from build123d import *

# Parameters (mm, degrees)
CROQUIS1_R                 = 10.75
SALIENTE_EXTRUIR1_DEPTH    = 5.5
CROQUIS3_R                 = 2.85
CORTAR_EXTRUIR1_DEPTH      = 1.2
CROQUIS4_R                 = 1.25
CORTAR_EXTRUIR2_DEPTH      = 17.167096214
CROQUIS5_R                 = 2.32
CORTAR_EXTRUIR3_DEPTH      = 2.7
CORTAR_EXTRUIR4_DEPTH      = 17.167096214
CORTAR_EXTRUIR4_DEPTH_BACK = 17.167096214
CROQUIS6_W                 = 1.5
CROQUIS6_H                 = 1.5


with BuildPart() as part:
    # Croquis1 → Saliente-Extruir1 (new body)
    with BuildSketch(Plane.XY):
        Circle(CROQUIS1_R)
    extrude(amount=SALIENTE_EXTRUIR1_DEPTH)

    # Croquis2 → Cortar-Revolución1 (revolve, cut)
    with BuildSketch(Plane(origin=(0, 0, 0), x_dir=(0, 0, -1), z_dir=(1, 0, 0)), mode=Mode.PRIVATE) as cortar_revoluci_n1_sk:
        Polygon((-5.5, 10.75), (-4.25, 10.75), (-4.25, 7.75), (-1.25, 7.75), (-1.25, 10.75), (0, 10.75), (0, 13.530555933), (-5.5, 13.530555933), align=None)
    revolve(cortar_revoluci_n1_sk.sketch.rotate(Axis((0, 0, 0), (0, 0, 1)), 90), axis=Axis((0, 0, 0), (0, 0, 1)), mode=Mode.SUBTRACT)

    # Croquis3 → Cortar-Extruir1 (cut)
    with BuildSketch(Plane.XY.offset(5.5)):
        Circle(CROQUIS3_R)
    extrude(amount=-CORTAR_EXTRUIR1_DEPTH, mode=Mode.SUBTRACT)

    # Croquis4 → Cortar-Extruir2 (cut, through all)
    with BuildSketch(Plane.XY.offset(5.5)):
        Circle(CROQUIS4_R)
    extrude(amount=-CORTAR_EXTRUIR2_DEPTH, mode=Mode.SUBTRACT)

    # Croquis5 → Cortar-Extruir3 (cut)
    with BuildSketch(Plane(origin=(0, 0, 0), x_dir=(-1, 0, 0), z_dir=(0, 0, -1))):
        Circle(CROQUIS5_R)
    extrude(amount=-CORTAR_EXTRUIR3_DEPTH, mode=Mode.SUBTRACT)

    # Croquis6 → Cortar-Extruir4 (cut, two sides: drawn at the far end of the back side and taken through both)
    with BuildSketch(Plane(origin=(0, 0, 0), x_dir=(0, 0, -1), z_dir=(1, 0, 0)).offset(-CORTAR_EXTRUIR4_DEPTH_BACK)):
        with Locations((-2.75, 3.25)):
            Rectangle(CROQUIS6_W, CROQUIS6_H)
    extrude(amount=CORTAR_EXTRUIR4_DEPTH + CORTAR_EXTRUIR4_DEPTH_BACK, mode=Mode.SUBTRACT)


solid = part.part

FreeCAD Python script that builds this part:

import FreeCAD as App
import Part
import Sketcher

doc = App.newDocument("Part")
body = doc.addObject("PartDesign::Body", "Body")

sketch1 = body.newObject("Sketcher::SketchObject", "Sketch")
sketch1.AttachmentSupport = (doc.getObject("XY_Plane"), [""])
sketch1.MapMode = "FlatFace"
sketch1.addGeometry(Part.Circle(App.Vector(0, 0, 0), App.Vector(0, 0, 1), 11), False)
sketch1.addConstraint(Sketcher.Constraint("Coincident", 0, 3, -1, 1))
sketch1.addConstraint(Sketcher.Constraint("Diameter", 0, 21.5))
pad1 = body.newObject("PartDesign::Pad", "Pad")
pad1.Profile = sketch1
pad1.Length = 5.5

sketch2 = body.newObject("Sketcher::SketchObject", "Sketch001")
sketch2.AttachmentSupport = (doc.getObject("YZ_Plane"), [""])
sketch2.MapMode = "FlatFace"
sketch2.addGeometry(Part.LineSegment(App.Vector(10.8, 5.5, 0), App.Vector(10.8, 4.2, 0)), False)
sketch2.addGeometry(Part.LineSegment(App.Vector(10.8, 4.2, 0), App.Vector(7.8, 4.2, 0)), False)
sketch2.addGeometry(Part.LineSegment(App.Vector(7.8, 4.2, 0), App.Vector(7.8, 1.2, 0)), False)
sketch2.addGeometry(Part.LineSegment(App.Vector(7.8, 1.2, 0), App.Vector(10.8, 1.2, 0)), False)
sketch2.addGeometry(Part.LineSegment(App.Vector(10.8, 1.2, 0), App.Vector(10.8, 0, 0)), False)
sketch2.addGeometry(Part.LineSegment(App.Vector(10.8, 0, 0), App.Vector(13.5, 0, 0)), False)
sketch2.addGeometry(Part.LineSegment(App.Vector(13.5, 0, 0), App.Vector(13.5, 5.5, 0)), False)
sketch2.addGeometry(Part.LineSegment(App.Vector(13.5, 5.5, 0), App.Vector(10.8, 5.5, 0)), False)
sketch2.addConstraint(Sketcher.Constraint("Coincident", 0, 2, 1, 1))
sketch2.addConstraint(Sketcher.Constraint("Coincident", 1, 2, 2, 1))
sketch2.addConstraint(Sketcher.Constraint("Coincident", 2, 2, 3, 1))
sketch2.addConstraint(Sketcher.Constraint("Coincident", 3, 2, 4, 1))
sketch2.addConstraint(Sketcher.Constraint("Coincident", 4, 2, 5, 1))
sketch2.addConstraint(Sketcher.Constraint("Coincident", 5, 2, 6, 1))
sketch2.addConstraint(Sketcher.Constraint("Coincident", 6, 2, 7, 1))
sketch2.addConstraint(Sketcher.Constraint("Coincident", 7, 2, 0, 1))
sketch2.addConstraint(Sketcher.Constraint("Vertical", 0))
sketch2.addConstraint(Sketcher.Constraint("Horizontal", 1))
sketch2.addConstraint(Sketcher.Constraint("Vertical", 2))
sketch2.addConstraint(Sketcher.Constraint("Horizontal", 3))
sketch2.addConstraint(Sketcher.Constraint("Vertical", 4))
sketch2.addConstraint(Sketcher.Constraint("Horizontal", 5))
sketch2.addConstraint(Sketcher.Constraint("Vertical", 6))
sketch2.addConstraint(Sketcher.Constraint("Horizontal", 7))
sketch2.addConstraint(Sketcher.Constraint("PointOnObject", 4, 2, -1))
sketch2.addConstraint(Sketcher.Constraint("Vertical", 0, 2, 3, 2))
sketch2.addConstraint(Sketcher.Constraint("Equal", 3, 2))
sketch2.addConstraint(Sketcher.Constraint("Equal", 0, 4))
sketch2.addConstraint(Sketcher.Constraint("DistanceX", 1, 2, 1, 1, 3.0))
sketch2.addConstraint(Sketcher.Constraint("DistanceY", 6, 1, 6, 2, 5.5))
sketch2.addConstraint(Sketcher.Constraint("DistanceX", -1, 1, 0, 2, 10.75))
sketch2.addConstraint(Sketcher.Constraint("DistanceX", 5, 1, 5, 2, 2.780556))
groove = body.newObject("PartDesign::Groove", "Groove")
groove.Profile = sketch2
groove.ReferenceAxis = (sketch2, ["V_Axis"])
groove.Angle = 360

sketch3 = body.newObject("Sketcher::SketchObject", "Sketch002")
sketch3.AttachmentSupport = (doc.getObject("XY_Plane"), [""])
sketch3.MapMode = "FlatFace"
sketch3.AttachmentOffset = App.Placement(App.Vector(0, 0, 5.5), App.Rotation())
sketch3.addGeometry(Part.Circle(App.Vector(0, 0, 0), App.Vector(0, 0, 1), 2.9), False)
sketch3.addConstraint(Sketcher.Constraint("Coincident", 0, 3, -1, 1))
sketch3.addConstraint(Sketcher.Constraint("Diameter", 0, 5.7))
pocket1 = body.newObject("PartDesign::Pocket", "Pocket")
pocket1.Profile = sketch3
pocket1.Length = 1.2

sketch4 = body.newObject("Sketcher::SketchObject", "Sketch003")
sketch4.AttachmentSupport = (doc.getObject("XY_Plane"), [""])
sketch4.MapMode = "FlatFace"
sketch4.AttachmentOffset = App.Placement(App.Vector(0, 0, 5.5), App.Rotation())
sketch4.addGeometry(Part.Circle(App.Vector(0, 0, 0), App.Vector(0, 0, 1), 1.2), False)
sketch4.addConstraint(Sketcher.Constraint("Coincident", 0, 3, -1, 1))
sketch4.addConstraint(Sketcher.Constraint("Diameter", 0, 2.5))
pocket2 = body.newObject("PartDesign::Pocket", "Pocket001")
pocket2.Profile = sketch4
pocket2.Type = "ThroughAll"

sketch5 = body.newObject("Sketcher::SketchObject", "Sketch004")
sketch5.AttachmentSupport = (doc.getObject("XY_Plane"), [""])
sketch5.MapMode = "FlatFace"
sketch5.addGeometry(Part.Circle(App.Vector(0, 0, 0), App.Vector(0, 0, 1), 2.3), False)
sketch5.addConstraint(Sketcher.Constraint("Coincident", 0, 3, -1, 1))
sketch5.addConstraint(Sketcher.Constraint("Diameter", 0, 4.64))
pocket3 = body.newObject("PartDesign::Pocket", "Pocket002")
pocket3.Profile = sketch5
pocket3.Length = 2.7
pocket3.Reversed = True

sketch6 = body.newObject("Sketcher::SketchObject", "Sketch005")
sketch6.AttachmentSupport = (doc.getObject("YZ_Plane"), [""])
sketch6.MapMode = "FlatFace"
sketch6.addGeometry(Part.LineSegment(App.Vector(4, 3.5, 0), App.Vector(2.5, 3.5, 0)), False)
sketch6.addGeometry(Part.LineSegment(App.Vector(2.5, 3.5, 0), App.Vector(2.5, 2, 0)), False)
sketch6.addGeometry(Part.LineSegment(App.Vector(2.5, 2, 0), App.Vector(4, 2, 0)), False)
sketch6.addGeometry(Part.LineSegment(App.Vector(4, 2, 0), App.Vector(4, 3.5, 0)), False)
sketch6.addConstraint(Sketcher.Constraint("Coincident", 0, 2, 1, 1))
sketch6.addConstraint(Sketcher.Constraint("Coincident", 1, 2, 2, 1))
sketch6.addConstraint(Sketcher.Constraint("Coincident", 2, 2, 3, 1))
sketch6.addConstraint(Sketcher.Constraint("Coincident", 3, 2, 0, 1))
sketch6.addConstraint(Sketcher.Constraint("Horizontal", 0))
sketch6.addConstraint(Sketcher.Constraint("Vertical", 1))
sketch6.addConstraint(Sketcher.Constraint("Horizontal", 2))
sketch6.addConstraint(Sketcher.Constraint("Vertical", 3))
sketch6.addConstraint(Sketcher.Constraint("Equal", 2, 1))
sketch6.addConstraint(Sketcher.Constraint("DistanceX", 0, 2, 0, 1, 1.5))
sketch6.addConstraint(Sketcher.Constraint("DistanceY", -1, 1, 1, 2, 2.0))
sketch6.addConstraint(Sketcher.Constraint("DistanceX", -1, 1, 2, 2, 4.0))
pocket4 = body.newObject("PartDesign::Pocket", "Pocket003")
pocket4.Profile = sketch6
pocket4.Type = "ThroughAll"
pocket4.Midplane = True

doc.recompute()
